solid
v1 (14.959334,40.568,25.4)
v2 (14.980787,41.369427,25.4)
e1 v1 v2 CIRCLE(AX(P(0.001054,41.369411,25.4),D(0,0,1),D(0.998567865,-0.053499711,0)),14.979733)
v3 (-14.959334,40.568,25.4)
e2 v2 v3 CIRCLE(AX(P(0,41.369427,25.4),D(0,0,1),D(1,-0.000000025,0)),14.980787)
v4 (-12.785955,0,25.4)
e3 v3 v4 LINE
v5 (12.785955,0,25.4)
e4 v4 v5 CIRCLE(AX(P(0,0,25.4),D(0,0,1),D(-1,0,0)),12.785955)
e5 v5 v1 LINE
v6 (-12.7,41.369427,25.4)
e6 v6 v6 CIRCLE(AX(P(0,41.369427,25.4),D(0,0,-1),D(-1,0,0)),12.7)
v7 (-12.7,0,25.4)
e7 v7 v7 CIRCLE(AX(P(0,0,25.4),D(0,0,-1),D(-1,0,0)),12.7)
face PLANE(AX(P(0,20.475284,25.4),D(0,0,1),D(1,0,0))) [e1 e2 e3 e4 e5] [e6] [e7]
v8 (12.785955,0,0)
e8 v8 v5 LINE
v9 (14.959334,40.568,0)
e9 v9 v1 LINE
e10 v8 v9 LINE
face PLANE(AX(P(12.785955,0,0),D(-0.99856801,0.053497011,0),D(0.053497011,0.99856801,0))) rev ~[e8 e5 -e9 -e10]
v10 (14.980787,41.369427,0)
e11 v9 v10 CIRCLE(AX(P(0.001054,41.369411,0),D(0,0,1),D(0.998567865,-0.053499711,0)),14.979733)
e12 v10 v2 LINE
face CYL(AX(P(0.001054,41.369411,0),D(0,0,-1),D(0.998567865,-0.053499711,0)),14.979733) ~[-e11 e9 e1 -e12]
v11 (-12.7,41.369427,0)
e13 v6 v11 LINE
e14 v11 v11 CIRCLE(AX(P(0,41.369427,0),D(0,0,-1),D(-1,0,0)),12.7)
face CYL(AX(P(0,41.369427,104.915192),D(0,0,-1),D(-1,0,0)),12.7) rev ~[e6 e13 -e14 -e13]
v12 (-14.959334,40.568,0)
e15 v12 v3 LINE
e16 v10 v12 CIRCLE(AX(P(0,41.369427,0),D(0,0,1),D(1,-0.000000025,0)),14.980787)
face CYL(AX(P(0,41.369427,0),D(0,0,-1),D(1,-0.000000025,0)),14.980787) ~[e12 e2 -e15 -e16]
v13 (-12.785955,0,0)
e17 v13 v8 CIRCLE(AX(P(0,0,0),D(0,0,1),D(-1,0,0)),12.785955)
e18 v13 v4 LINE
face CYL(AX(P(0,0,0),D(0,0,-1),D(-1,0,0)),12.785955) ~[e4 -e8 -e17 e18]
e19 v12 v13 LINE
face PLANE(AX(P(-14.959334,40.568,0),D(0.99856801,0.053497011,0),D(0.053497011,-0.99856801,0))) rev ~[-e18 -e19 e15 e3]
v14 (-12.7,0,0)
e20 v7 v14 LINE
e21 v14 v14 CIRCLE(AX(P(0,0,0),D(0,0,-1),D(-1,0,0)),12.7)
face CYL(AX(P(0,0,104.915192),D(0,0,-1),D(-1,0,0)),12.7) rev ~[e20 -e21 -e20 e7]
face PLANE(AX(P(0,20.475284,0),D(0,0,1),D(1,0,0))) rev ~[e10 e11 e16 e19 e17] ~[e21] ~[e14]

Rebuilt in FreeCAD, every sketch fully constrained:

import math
import FreeCAD as App
import Part
import Sketcher

V = App.Vector
Q = App.Units.Quantity

doc = App.newDocument("Part")
body = doc.addObject("PartDesign::Body", "Body")

sketch1 = body.newObject("Sketcher::SketchObject", "Sketch")
sketch1.AttachmentSupport = (doc.getObject("XY_Plane"), [""])
sketch1.MapMode = "FlatFace"
sketch1.addGeometry([
    Part.LineSegment(V(-15, 40.6, 0), V(-12.8, 0, 0)),
    Part.ArcOfCircle(Part.Circle(V(0, 0, 0), V(0, 0, 1), 12.8), math.radians(180), math.radians(360)),
    Part.LineSegment(V(12.8, 0, 0), V(15, 40.6, 0)),
    Part.ArcOfCircle(Part.Circle(V(0, 41.4, 0), V(0, 0, 1), 15), math.radians(-3.07), math.radians(0)),
    Part.ArcOfCircle(Part.Circle(V(0, 41.4, 0), V(0, 0, 1), 15), math.radians(0), math.radians(183)),
], False)
sketch1.addConstraint([
    Sketcher.Constraint("Coincident", 0, 2, 1, 1),
    Sketcher.Constraint("Coincident", 1, 2, 2, 1),
    Sketcher.Constraint("Coincident", 2, 2, 3, 1),
    Sketcher.Constraint("Tangent", 3, 2, 4, 1),
    Sketcher.Constraint("Tangent", 4, 2, 0, 1),
    Sketcher.Constraint("Coincident", 1, 3, -1, 1),
    Sketcher.Constraint("Symmetric", 2, 2, 4, 2, -2),
    Sketcher.Constraint("PointOnObject", 0, 2, -1),
    Sketcher.Constraint("PointOnObject", 1, 2, -1),
    Sketcher.Constraint("Horizontal", 4, 3, 3, 2),
    Sketcher.Constraint("Radius", 1, 12.785955),
    Sketcher.Constraint("Radius", 3, 14.979733),
    Sketcher.Constraint("Radius", 4, 14.980787),
    Sketcher.Constraint("DistanceY", -1, 1, 2, 2, 40.568),
])
pad1 = body.newObject("PartDesign::Pad", "Pad")
pad1.Profile = sketch1
pad1.Length = Q("1 in")

sketch2 = body.newObject("Sketcher::SketchObject", "Sketch001")
sketch2.AttachmentSupport = (doc.getObject("XY_Plane"), [""])
sketch2.MapMode = "FlatFace"
sketch2.AttachmentOffset = App.Placement(V(0, 0, 1 * 25.4), App.Rotation())
sketch2.addGeometry([
    Part.Circle(V(0, 0, 0), V(0, 0, 1), 13),
    Part.Circle(V(0, 41, 0), V(0, 0, 1), 13),
], False)
sketch2.addConstraint([
    Sketcher.Constraint("Coincident", 0, 3, -1, 1),
    Sketcher.Constraint("Equal", 0, 1),
    Sketcher.Constraint("PointOnObject", 1, 3, -2),
    Sketcher.Constraint("Diameter", 0, Q("1 in")),
    Sketcher.Constraint("DistanceY", -1, 1, 1, 3, 41.369427),
])
doc.recompute()
hole = body.newObject("PartDesign::Hole", "Hole")
hole.Profile = sketch2
hole.ThreadType = "None"
hole.Diameter = Q("1 in")
hole.DepthType = "ThroughAll"

doc.recompute()
